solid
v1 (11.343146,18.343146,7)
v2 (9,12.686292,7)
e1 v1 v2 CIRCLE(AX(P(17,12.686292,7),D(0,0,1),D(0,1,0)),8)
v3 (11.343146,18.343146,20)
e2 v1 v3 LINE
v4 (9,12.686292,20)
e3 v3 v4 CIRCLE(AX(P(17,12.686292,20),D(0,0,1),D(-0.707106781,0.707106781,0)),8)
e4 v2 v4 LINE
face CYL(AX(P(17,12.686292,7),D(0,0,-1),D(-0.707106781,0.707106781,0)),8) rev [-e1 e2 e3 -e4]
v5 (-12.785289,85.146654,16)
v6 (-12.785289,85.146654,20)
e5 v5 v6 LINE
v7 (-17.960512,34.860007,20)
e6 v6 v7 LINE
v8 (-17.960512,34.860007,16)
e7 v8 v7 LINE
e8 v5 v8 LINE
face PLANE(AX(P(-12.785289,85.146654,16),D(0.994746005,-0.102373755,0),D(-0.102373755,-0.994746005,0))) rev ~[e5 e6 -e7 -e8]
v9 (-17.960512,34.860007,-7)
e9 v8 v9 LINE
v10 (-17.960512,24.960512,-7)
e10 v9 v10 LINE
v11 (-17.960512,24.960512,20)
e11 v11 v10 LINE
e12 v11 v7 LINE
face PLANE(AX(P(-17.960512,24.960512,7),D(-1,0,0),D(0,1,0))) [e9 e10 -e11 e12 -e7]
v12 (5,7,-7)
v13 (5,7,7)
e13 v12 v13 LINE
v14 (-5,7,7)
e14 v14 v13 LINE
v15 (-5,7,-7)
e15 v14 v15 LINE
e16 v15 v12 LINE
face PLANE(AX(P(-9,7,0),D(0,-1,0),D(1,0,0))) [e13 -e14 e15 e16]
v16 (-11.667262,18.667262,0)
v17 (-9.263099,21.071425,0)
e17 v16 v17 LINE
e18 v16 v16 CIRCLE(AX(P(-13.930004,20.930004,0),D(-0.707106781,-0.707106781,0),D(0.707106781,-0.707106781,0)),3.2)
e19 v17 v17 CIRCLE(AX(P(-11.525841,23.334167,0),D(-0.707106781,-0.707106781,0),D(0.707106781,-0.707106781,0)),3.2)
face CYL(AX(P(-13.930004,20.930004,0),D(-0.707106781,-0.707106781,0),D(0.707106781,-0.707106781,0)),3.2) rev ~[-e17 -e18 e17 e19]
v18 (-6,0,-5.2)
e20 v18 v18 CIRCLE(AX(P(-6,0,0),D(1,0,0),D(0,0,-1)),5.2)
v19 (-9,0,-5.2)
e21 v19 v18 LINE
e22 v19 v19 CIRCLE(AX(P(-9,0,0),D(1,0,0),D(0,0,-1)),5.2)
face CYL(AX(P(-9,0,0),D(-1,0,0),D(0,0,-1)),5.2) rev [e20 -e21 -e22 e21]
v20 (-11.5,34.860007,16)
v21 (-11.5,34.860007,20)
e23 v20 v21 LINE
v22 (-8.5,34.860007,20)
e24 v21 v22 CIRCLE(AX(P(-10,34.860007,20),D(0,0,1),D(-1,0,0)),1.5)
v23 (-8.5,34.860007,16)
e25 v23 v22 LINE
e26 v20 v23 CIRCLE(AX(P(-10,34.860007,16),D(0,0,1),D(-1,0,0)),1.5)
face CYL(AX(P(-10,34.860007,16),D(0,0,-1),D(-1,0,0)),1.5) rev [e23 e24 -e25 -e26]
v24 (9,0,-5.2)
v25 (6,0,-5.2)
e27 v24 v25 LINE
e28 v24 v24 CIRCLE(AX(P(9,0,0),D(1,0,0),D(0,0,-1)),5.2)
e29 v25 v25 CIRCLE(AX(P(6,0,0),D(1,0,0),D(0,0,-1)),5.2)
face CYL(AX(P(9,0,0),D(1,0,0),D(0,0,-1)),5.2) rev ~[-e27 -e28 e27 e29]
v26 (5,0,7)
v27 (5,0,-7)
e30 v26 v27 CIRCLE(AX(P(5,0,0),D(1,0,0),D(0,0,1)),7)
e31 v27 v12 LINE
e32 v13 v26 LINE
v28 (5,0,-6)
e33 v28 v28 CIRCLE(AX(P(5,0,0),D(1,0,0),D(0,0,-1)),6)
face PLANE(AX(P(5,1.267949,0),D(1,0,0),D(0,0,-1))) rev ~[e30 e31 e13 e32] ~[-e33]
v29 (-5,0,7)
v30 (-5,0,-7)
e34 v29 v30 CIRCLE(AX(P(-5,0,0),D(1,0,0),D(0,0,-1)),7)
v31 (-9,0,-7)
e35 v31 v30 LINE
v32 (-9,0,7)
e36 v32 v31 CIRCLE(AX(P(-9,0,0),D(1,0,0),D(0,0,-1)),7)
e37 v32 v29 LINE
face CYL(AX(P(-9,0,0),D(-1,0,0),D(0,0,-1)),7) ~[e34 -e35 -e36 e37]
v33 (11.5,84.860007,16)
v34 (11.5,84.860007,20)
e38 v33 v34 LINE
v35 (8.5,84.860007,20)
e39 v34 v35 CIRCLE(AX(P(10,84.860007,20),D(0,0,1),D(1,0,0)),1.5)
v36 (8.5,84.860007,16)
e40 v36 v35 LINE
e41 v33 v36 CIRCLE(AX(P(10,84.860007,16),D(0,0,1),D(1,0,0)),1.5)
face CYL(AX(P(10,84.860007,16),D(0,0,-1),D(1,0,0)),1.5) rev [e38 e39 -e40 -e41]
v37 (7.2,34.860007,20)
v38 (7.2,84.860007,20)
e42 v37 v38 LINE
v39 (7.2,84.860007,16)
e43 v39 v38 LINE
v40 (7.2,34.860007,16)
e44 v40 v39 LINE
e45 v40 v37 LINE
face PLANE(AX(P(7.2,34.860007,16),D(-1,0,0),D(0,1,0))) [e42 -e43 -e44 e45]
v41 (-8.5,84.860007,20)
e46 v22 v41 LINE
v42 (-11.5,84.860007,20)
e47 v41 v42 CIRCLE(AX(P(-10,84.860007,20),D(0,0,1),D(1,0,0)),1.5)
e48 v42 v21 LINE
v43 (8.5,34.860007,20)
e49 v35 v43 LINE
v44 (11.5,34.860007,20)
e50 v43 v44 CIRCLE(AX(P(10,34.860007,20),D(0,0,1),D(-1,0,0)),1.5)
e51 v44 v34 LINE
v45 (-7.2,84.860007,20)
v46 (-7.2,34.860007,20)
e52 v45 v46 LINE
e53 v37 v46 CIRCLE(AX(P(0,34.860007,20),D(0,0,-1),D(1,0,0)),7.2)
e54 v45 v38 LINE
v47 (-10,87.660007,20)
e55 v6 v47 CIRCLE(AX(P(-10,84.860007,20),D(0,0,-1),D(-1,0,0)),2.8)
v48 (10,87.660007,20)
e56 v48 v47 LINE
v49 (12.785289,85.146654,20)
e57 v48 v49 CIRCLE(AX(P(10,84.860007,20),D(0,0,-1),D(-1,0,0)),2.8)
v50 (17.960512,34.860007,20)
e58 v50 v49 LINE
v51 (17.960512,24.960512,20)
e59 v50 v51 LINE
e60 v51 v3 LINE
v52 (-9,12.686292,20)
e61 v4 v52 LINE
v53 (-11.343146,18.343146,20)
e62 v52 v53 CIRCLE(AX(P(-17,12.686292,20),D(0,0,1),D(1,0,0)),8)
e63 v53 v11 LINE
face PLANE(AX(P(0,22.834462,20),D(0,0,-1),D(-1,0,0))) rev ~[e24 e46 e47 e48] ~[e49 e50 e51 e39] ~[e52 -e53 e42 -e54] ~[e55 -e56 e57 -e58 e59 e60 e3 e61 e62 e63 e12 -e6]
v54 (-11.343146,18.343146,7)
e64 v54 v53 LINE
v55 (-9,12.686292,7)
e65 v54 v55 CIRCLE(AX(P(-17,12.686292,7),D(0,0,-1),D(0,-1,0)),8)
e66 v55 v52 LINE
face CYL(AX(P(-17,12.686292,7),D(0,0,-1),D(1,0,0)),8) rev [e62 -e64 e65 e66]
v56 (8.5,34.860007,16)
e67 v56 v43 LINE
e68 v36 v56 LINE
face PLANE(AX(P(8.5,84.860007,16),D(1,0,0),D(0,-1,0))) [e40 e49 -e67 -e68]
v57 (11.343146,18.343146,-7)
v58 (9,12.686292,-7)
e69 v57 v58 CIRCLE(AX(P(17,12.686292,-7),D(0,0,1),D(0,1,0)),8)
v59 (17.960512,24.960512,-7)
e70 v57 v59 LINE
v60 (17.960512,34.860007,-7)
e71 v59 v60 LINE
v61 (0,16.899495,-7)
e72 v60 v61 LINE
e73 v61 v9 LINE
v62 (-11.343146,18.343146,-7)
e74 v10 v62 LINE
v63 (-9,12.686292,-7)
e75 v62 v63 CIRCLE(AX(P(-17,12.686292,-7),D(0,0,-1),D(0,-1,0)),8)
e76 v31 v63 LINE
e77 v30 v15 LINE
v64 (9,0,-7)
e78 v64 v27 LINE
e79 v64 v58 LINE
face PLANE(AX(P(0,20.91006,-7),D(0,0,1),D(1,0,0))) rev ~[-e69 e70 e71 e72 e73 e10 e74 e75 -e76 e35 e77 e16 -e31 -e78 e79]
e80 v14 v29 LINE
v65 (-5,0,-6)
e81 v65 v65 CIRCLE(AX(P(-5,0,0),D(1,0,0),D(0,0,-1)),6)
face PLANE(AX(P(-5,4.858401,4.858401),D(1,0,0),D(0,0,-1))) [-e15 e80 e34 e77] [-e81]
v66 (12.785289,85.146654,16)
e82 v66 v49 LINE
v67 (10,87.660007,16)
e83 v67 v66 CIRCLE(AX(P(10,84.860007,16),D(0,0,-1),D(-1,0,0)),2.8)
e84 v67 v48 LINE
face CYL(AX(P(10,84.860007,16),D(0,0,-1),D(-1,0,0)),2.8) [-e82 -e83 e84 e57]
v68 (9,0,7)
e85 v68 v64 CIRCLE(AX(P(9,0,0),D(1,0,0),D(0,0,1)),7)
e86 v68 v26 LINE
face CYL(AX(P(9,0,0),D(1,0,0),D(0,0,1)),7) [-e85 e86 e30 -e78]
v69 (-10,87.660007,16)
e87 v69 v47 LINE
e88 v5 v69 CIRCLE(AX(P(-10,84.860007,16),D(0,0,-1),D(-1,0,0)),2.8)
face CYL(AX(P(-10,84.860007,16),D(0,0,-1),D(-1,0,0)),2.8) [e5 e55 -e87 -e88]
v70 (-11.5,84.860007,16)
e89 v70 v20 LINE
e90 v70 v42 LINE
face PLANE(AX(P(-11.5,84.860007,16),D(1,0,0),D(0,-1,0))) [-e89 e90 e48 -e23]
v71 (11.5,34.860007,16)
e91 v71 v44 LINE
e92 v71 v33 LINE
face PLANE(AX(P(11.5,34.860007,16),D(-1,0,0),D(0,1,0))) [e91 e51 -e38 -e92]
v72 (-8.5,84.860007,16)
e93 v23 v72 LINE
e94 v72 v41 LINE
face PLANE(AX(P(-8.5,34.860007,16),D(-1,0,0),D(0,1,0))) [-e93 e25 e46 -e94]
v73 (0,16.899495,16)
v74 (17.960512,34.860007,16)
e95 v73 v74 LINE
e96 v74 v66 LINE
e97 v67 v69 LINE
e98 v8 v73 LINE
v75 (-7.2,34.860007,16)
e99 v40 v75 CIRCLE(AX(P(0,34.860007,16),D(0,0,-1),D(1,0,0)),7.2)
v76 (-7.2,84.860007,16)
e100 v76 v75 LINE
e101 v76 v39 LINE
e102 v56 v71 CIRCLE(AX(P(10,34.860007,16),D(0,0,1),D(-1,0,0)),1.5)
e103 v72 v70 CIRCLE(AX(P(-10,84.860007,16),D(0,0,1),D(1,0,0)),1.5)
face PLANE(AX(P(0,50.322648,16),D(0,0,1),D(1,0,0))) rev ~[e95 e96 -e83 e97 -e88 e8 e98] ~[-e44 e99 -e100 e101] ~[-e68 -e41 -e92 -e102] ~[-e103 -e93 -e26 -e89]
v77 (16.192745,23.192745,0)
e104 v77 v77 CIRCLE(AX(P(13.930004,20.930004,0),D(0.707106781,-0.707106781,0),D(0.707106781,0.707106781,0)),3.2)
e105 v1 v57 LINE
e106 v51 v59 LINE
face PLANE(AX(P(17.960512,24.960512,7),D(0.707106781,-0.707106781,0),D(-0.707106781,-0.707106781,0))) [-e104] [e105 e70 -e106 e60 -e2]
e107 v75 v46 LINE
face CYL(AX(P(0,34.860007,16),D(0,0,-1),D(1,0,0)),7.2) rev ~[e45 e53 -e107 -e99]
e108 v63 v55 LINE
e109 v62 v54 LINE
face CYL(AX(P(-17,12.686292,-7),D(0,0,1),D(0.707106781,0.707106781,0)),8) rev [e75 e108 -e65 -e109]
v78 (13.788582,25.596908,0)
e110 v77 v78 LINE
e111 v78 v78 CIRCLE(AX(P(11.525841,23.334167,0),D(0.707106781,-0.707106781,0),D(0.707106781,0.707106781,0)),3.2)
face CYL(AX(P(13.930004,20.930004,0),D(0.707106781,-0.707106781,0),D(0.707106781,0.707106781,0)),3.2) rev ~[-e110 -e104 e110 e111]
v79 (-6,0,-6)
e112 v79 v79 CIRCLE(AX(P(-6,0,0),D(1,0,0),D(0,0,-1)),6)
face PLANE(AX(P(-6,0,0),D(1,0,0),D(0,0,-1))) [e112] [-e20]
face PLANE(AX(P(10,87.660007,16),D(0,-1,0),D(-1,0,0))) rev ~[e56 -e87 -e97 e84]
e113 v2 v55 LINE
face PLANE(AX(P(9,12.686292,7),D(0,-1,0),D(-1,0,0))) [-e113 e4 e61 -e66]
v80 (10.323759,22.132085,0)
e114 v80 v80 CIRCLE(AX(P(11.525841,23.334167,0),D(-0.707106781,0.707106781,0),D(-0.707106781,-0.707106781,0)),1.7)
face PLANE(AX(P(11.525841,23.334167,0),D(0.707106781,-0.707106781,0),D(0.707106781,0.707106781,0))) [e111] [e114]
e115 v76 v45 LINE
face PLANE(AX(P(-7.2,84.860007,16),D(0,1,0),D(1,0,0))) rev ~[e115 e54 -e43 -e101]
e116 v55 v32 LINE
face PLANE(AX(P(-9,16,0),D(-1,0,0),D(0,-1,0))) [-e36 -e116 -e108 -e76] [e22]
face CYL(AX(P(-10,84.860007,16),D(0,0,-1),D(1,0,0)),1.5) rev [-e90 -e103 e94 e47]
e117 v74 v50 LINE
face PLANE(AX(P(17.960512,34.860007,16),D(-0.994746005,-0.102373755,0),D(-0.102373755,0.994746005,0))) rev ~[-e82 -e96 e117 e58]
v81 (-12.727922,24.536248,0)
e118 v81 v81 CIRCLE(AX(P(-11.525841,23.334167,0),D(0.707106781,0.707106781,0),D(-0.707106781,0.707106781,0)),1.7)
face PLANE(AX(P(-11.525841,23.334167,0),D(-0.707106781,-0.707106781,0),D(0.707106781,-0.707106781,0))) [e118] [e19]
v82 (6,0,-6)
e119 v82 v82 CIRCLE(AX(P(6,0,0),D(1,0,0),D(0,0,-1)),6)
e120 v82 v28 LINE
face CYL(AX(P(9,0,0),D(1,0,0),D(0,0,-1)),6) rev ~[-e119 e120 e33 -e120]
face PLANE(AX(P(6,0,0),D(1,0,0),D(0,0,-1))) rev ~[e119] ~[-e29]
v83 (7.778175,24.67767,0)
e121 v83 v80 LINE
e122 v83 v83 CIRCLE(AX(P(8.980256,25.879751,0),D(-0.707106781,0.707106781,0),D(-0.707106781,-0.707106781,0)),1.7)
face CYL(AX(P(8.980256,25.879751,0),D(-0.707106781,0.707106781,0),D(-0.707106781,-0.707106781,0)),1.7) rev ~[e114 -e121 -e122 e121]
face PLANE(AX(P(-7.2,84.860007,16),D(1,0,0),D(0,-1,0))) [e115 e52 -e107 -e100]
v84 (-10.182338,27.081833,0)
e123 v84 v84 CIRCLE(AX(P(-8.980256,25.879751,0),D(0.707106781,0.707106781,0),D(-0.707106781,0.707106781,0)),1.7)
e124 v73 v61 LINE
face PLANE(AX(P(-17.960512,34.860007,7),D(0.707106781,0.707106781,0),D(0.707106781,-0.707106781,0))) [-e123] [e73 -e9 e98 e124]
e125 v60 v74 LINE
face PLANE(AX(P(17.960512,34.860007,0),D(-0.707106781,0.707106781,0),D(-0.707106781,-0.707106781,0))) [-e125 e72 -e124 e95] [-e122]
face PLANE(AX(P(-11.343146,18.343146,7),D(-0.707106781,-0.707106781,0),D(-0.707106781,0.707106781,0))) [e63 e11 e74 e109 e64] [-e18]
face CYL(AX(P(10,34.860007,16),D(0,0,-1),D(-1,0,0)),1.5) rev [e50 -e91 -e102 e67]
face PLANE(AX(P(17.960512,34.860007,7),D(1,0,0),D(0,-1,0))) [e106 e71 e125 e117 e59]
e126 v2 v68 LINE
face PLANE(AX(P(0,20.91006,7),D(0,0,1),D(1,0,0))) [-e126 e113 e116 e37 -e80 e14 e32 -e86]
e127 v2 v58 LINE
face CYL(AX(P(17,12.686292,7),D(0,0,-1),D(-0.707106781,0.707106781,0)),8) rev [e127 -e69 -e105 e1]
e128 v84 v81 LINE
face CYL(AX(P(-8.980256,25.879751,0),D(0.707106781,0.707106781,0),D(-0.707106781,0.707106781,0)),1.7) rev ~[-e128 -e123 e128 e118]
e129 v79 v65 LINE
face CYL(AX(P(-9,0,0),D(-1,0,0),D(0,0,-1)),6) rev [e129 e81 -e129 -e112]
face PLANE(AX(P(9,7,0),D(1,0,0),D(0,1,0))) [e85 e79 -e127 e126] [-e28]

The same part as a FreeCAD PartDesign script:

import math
import FreeCAD as App
import Part
import Sketcher

V = App.Vector


def edges_at(feature, points):
    """Names of the edges that pass closest to the given points."""
    edges = feature.Shape.Edges
    near = lambda p: min(range(len(edges)), key=lambda i: edges[i].distToShape(Part.Vertex(*p))[0])
    return sorted({f"Edge{near(p) + 1}" for p in points})

doc = App.newDocument("Part")
params = doc.addObject("Spreadsheet::Sheet", "Params")
for row, (alias, value) in enumerate([
    ("sketch1_diameter", "12 mm"),
    ("sketch1_diameter2", "10.4 mm"),
    ("pad1_length", "3 mm"),
    ("sketch2_diameter", "12 mm"),
    ("sketch2_radius", "7 mm"),
    ("sketch2_width", "7 mm"),
    ("pad2_length", "4 mm"),
    ("sketch3_diameter", "12 mm"),
    ("sketch3_radius", "7 mm"),
    ("sketch3_width", "7 mm"),
    ("pad3_length", "4 mm"),
    ("sketch4_diameter", "12 mm"),
    ("sketch4_diameter2", "10.4 mm"),
    ("pad4_length", "3 mm"),
    ("sketch5_width", "18 mm"),
    ("sketch5_height", "9 mm"),
    ("sketch5_length", "25.4 mm"),
    ("pad5_length", "7 mm"),
    ("pad5_length2", "7 mm"),
    ("sketch6_diameter", "3.4 mm"),
    ("pocket1_length", "7 mm"),
    ("sketch7_diameter", "3.4 mm"),
    ("pocket2_length", "7 mm"),
    ("sketch8_diameter", "6.4 mm"),
    ("pocket3_length", "3.4 mm"),
    ("sketch9_diameter", "6.4 mm"),
    ("pocket4_length", "3.4 mm"),
    ("fillet_radius", "8 mm"),
    ("sketch10_radius", "2.8 mm"),
    ("sketch10_radius2", "7.2 mm"),
    ("sketch10_radius3", "1.5 mm"),
    ("sketch10_width", "20 mm"),
    ("sketch10_height", "50 mm"),
    ("pad6_length", "4 mm"),
    ("sketch11_radius", "8 mm"),
    ("sketch11_width", "18 mm"),
    ("sketch11_length", "25.4 mm"),
    ("pad7_length", "13 mm"),
], start=1):
    params.set(f"A{row}", alias)
    params.set(f"B{row}", "=" + value)
    params.setAlias(f"B{row}", alias)

body = doc.addObject("PartDesign::Body", "Body")

sketch1 = doc.addObject("Sketcher::SketchObject", "Sketch")
body.addObject(sketch1)
sketch1.AttachmentSupport = (doc.YZ_Plane, [""])
sketch1.MapMode = "FlatFace"
sketch1.AttachmentOffset = App.Placement(V(0, 0, 9), App.Rotation())
sketch1.addGeometry([
    Part.Circle(V(0, 0, 0), V(0, 0, 1), 6),
    Part.Circle(V(0, 0, 0), V(0, 0, 1), 5.2),
], False)
sketch1.addConstraint([
    Sketcher.Constraint("Coincident", 0, 3, -1, 1),
    Sketcher.Constraint("Coincident", 1, 3, -1, 1),
    Sketcher.Constraint("Diameter", 0, 12.0),
    Sketcher.Constraint("Diameter", 1, 10.4),
])
sketch1.setExpression("Constraints[2]", "Params.sketch1_diameter")
sketch1.setExpression("Constraints[3]", "Params.sketch1_diameter2")
pad1 = doc.addObject("PartDesign::Pad", "Pad")
body.addObject(pad1)
pad1.Profile = sketch1
pad1.setExpression("Length", "Params.pad1_length")
pad1.Reversed = True

sketch2 = doc.addObject("Sketcher::SketchObject", "Sketch001")
body.addObject(sketch2)
sketch2.AttachmentSupport = (doc.YZ_Plane, [""])
sketch2.MapMode = "FlatFace"
sketch2.AttachmentOffset = App.Placement(V(0, 0, 9), App.Rotation())
sketch2.addGeometry([
    Part.LineSegment(V(7, 7, 0), V(0, 7, 0)),
    Part.ArcOfCircle(Part.Circle(V(0, 0, 0), V(0, 0, 1), 7), math.radians(90), math.radians(270)),
    Part.LineSegment(V(0, -7, 0), V(7, -7, 0)),
    Part.LineSegment(V(7, -7, 0), V(7, 7, 0)),
    Part.Circle(V(0, 0, 0), V(0, 0, 1), 6),
], False)
sketch2.addConstraint([
    Sketcher.Constraint("Tangent", 0, 2, 1, 1),
    Sketcher.Constraint("Tangent", 1, 2, 2, 1),
    Sketcher.Constraint("Coincident", 2, 2, 3, 1),
    Sketcher.Constraint("Coincident", 3, 2, 0, 1),
    Sketcher.Constraint("Horizontal", 0),
    Sketcher.Constraint("Horizontal", 2),
    Sketcher.Constraint("Vertical", 3),
    Sketcher.Constraint("Coincident", 1, 3, -1, 1),
    Sketcher.Constraint("Coincident", 4, 3, -1, 1),
    Sketcher.Constraint("Diameter", 4, 12.0),
    Sketcher.Constraint("Radius", 1, 7.0),
    Sketcher.Constraint("DistanceX", 0, 2, 0, 1, 7.0),
])
sketch2.setExpression("Constraints[9]", "Params.sketch2_diameter")
sketch2.setExpression("Constraints[10]", "Params.sketch2_radius")
sketch2.setExpression("Constraints[11]", "Params.sketch2_width")
pad2 = doc.addObject("PartDesign::Pad", "Pad001")
body.addObject(pad2)
pad2.Profile = sketch2
pad2.setExpression("Length", "Params.pad2_length")
pad2.Reversed = True
body2 = doc.addObject("PartDesign::Body", "Body001")

sketch3 = doc.addObject("Sketcher::SketchObject", "Sketch002")
body2.addObject(sketch3)
sketch3.AttachmentSupport = (doc.getObject("YZ_Plane001"), [""])
sketch3.MapMode = "FlatFace"
sketch3.AttachmentOffset = App.Placement(V(0, 0, -9), App.Rotation())
sketch3.addGeometry([
    Part.LineSegment(V(7, 7, 0), V(0, 7, 0)),
    Part.ArcOfCircle(Part.Circle(V(0, 0, 0), V(0, 0, 1), 7), math.radians(90), math.radians(270)),
    Part.LineSegment(V(0, -7, 0), V(7, -7, 0)),
    Part.LineSegment(V(7, -7, 0), V(7, 7, 0)),
    Part.Circle(V(0, 0, 0), V(0, 0, 1), 6),
], False)
sketch3.addConstraint([
    Sketcher.Constraint("Tangent", 0, 2, 1, 1),
    Sketcher.Constraint("Tangent", 1, 2, 2, 1),
    Sketcher.Constraint("Coincident", 2, 2, 3, 1),
    Sketcher.Constraint("Coincident", 3, 2, 0, 1),
    Sketcher.Constraint("Horizontal", 0),
    Sketcher.Constraint("Horizontal", 2),
    Sketcher.Constraint("Vertical", 3),
    Sketcher.Constraint("Coincident", 1, 3, -1, 1),
    Sketcher.Constraint("Coincident", 4, 3, -1, 1),
    Sketcher.Constraint("Diameter", 4, 12.0),
    Sketcher.Constraint("Radius", 1, 7.0),
    Sketcher.Constraint("DistanceX", 0, 2, 0, 1, 7.0),
])
sketch3.setExpression("Constraints[9]", "Params.sketch3_diameter")
sketch3.setExpression("Constraints[10]", "Params.sketch3_radius")
sketch3.setExpression("Constraints[11]", "Params.sketch3_width")
pad3 = doc.addObject("PartDesign::Pad", "Pad002")
body2.addObject(pad3)
pad3.Profile = sketch3
pad3.setExpression("Length", "Params.pad3_length")

sketch4 = doc.addObject("Sketcher::SketchObject", "Sketch003")
body2.addObject(sketch4)
sketch4.AttachmentSupport = (doc.getObject("YZ_Plane001"), [""])
sketch4.MapMode = "FlatFace"
sketch4.AttachmentOffset = App.Placement(V(0, 0, -9), App.Rotation())
sketch4.addGeometry([
    Part.Circle(V(0, 0, 0), V(0, 0, 1), 6),
    Part.Circle(V(0, 0, 0), V(0, 0, 1), 5.2),
], False)
sketch4.addConstraint([
    Sketcher.Constraint("Coincident", 0, 3, -1, 1),
    Sketcher.Constraint("Coincident", 1, 3, -1, 1),
    Sketcher.Constraint("Diameter", 0, 12.0),
    Sketcher.Constraint("Diameter", 1, 10.4),
])
sketch4.setExpression("Constraints[2]", "Params.sketch4_diameter")
sketch4.setExpression("Constraints[3]", "Params.sketch4_diameter2")
pad4 = doc.addObject("PartDesign::Pad", "Pad003")
body2.addObject(pad4)
pad4.Profile = sketch4
pad4.setExpression("Length", "Params.pad4_length")
body.AllowCompound = True
doc.recompute()

boolean = doc.addObject("PartDesign::Boolean", "Boolean")
body.addObject(boolean)
boolean.Type = "Fuse"
boolean.addObjects([body2])

sketch5 = doc.addObject("Sketcher::SketchObject", "Sketch004")
body.addObject(sketch5)
sketch5.AttachmentSupport = (doc.XY_Plane, [""])
sketch5.MapMode = "FlatFace"
sketch5.addGeometry([
    Part.LineSegment(V(9, 16, 0), V(17.960512, 24.960512, 0)),
    Part.LineSegment(V(17.960512, 24.960512, 0), V(17.960512, 34.860007, 0)),
    Part.LineSegment(V(17.960512, 34.860007, 0), V(0, 16.899495, 0)),
    Part.LineSegment(V(0, 16.899495, 0), V(-17.960512, 34.860007, 0)),
    Part.LineSegment(V(-17.960512, 34.860007, 0), V(-17.960512, 24.960512, 0)),
    Part.LineSegment(V(-17.960512, 24.960512, 0), V(-9, 16, 0)),
    Part.LineSegment(V(-9, 16, 0), V(-9, 7, 0)),
    Part.LineSegment(V(-9, 7, 0), V(9, 7, 0)),
    Part.LineSegment(V(9, 7, 0), V(9, 16, 0)),
], False)
sketch5.addConstraint([
    Sketcher.Constraint("Coincident", 0, 2, 1, 1),
    Sketcher.Constraint("Coincident", 1, 2, 2, 1),
    Sketcher.Constraint("Coincident", 2, 2, 3, 1),
    Sketcher.Constraint("Coincident", 3, 2, 4, 1),
    Sketcher.Constraint("Coincident", 4, 2, 5, 1),
    Sketcher.Constraint("Coincident", 5, 2, 6, 1),
    Sketcher.Constraint("Coincident", 6, 2, 7, 1),
    Sketcher.Constraint("Coincident", 7, 2, 8, 1),
    Sketcher.Constraint("Coincident", 8, 2, 0, 1),
    Sketcher.Constraint("Vertical", 1),
    Sketcher.Constraint("Vertical", 4),
    Sketcher.Constraint("Vertical", 6),
    Sketcher.Constraint("Horizontal", 7),
    Sketcher.Constraint("Vertical", 8),
    Sketcher.Constraint("Symmetric", 1, 2, 3, 2, -2),
    Sketcher.Constraint("Symmetric", 5, 2, 8, 2, -2),
    Sketcher.Constraint("PointOnObject", 2, 2, -2),
    Sketcher.Constraint("Parallel", 0, 2),
    Sketcher.Constraint("Perpendicular", 2, 3),
    Sketcher.Constraint("Parallel", 3, 5),
    Sketcher.Constraint("DistanceX", 7, 1, 7, 2, 18.0),
    Sketcher.Constraint("DistanceY", 6, 2, 6, 1, 9.0),
    Sketcher.Constraint("DistanceY", -1, 1, 5, 2, 16.0),
    Sketcher.Constraint("Distance", 2, 25.4),
    Sketcher.Constraint("DistanceY", 1, 1, 1, 2, 9.899495),
])
sketch5.setExpression("Constraints[20]", "Params.sketch5_width")
sketch5.setExpression("Constraints[21]", "Params.sketch5_height")
sketch5.setExpression("Constraints[23]", "Params.sketch5_length")
pad5 = doc.addObject("PartDesign::Pad", "Pad004")
body.addObject(pad5)
pad5.Profile = sketch5
pad5.Type = "TwoLengths"
pad5.setExpression("Length", "Params.pad5_length")
pad5.setExpression("Length2", "Params.pad5_length2")

sketch6 = doc.addObject("Sketcher::SketchObject", "Sketch005")
body.addObject(sketch6)
sketch6.Placement = App.Placement(V(8.449747, 8.449747, 0), App.Rotation(V(0.707106781, -0.707106781, 0), V(0, 0, -0.999999999), V(0.707106781, 0.707106781, 0), "ZXY"))
sketch6.addGeometry(Part.Circle(V(-24.649747, 0, 0), V(0, 0, 1), 1.7), False)
sketch6.addConstraint([
    Sketcher.Constraint("PointOnObject", 0, 3, -1),
    Sketcher.Constraint("Diameter", 0, 3.4),
    Sketcher.Constraint("DistanceX", 0, 3, -1, 1, 24.649747),
])
sketch6.setExpression("Constraints[1]", "Params.sketch6_diameter")
pocket1 = doc.addObject("PartDesign::Pocket", "Pocket")
body.addObject(pocket1)
pocket1.Profile = sketch6
pocket1.setExpression("Length", "Params.pocket1_length")

sketch7 = doc.addObject("Sketcher::SketchObject", "Sketch006")
body.addObject(sketch7)
sketch7.Placement = App.Placement(V(-8.449747, 8.449747, 0), App.Rotation(V(0.707106781, 0.707106781, 0), V(0, 0, -0.999999999), V(-0.707106781, 0.707106781, 0), "ZXY"))
sketch7.addGeometry(Part.Circle(V(24.649747, 0, 0), V(0, 0, 1), 1.7), False)
sketch7.addConstraint([
    Sketcher.Constraint("PointOnObject", 0, 3, -1),
    Sketcher.Constraint("Diameter", 0, 3.4),
    Sketcher.Constraint("DistanceX", -1, 1, 0, 3, 24.649747),
])
sketch7.setExpression("Constraints[1]", "Params.sketch7_diameter")
pocket2 = doc.addObject("PartDesign::Pocket", "Pocket001")
body.addObject(pocket2)
pocket2.Profile = sketch7
pocket2.setExpression("Length", "Params.pocket2_length")

sketch8 = doc.addObject("Sketcher::SketchObject", "Sketch007")
body.addObject(sketch8)
sketch8.Placement = App.Placement(V(-3.5, 3.5, 0), App.Rotation(V(-0.707106781, -0.707106781, 0), V(0, 0, -0.999999999), V(0.707106781, -0.707106781, 0), "ZXY"))
sketch8.addGeometry(Part.Circle(V(-24.649747, 0, 0), V(0, 0, 1), 3.2), False)
sketch8.addConstraint([
    Sketcher.Constraint("PointOnObject", 0, 3, -1),
    Sketcher.Constraint("Diameter", 0, 6.4),
    Sketcher.Constraint("DistanceX", 0, 3, -1, 1, 24.649747),
])
sketch8.setExpression("Constraints[1]", "Params.sketch8_diameter")
pocket3 = doc.addObject("PartDesign::Pocket", "Pocket002")
body.addObject(pocket3)
pocket3.Profile = sketch8
pocket3.setExpression("Length", "Params.pocket3_length")

sketch9 = doc.addObject("Sketcher::SketchObject", "Sketch008")
body.addObject(sketch9)
sketch9.Placement = App.Placement(V(3.5, 3.5, 0), App.Rotation(V(-0.707106781, 0.707106781, 0), V(0, 0, -0.999999999), V(-0.707106781, -0.707106781, 0), "ZXY"))
sketch9.addGeometry(Part.Circle(V(24.649747, 0, 0), V(0, 0, 1), 3.2), False)
sketch9.addConstraint([
    Sketcher.Constraint("PointOnObject", 0, 3, -1),
    Sketcher.Constraint("Diameter", 0, 6.4),
    Sketcher.Constraint("DistanceX", -1, 1, 0, 3, 24.649747),
])
sketch9.setExpression("Constraints[1]", "Params.sketch9_diameter")
pocket4 = doc.addObject("PartDesign::Pocket", "Pocket003")
body.addObject(pocket4)
pocket4.Profile = sketch9
pocket4.setExpression("Length", "Params.pocket4_length")
doc.recompute()

fillet = doc.addObject("PartDesign::Fillet", "Fillet")
body.addObject(fillet)
fillet.Base = (pocket4, edges_at(pocket4, [(9, 16, 0), (-9, 16, 0)]))
fillet.setExpression("Radius", "Params.fillet_radius")
body3 = doc.addObject("PartDesign::Body", "Body002")

sketch10 = doc.addObject("Sketcher::SketchObject", "Sketch009")
body3.addObject(sketch10)
sketch10.AttachmentSupport = (doc.getObject("XY_Plane002"), [""])
sketch10.MapMode = "FlatFace"
sketch10.AttachmentOffset = App.Placement(V(0, 0, 16), App.Rotation())
sketch10.addGeometry([
    Part.LineSegment(V(-17.960512, 34.860007, 0), V(0, 16.899495, 0)),
    Part.LineSegment(V(0, 16.899495, 0), V(17.960512, 34.860007, 0)),
    Part.LineSegment(V(17.960512, 34.860007, 0), V(12.785289, 85.146654, 0)),
    Part.ArcOfCircle(Part.Circle(V(10, 84.860007, 0), V(0, 0, 1), 2.8), math.radians(5.875878), math.radians(90)),
    Part.LineSegment(V(10, 87.660007, 0), V(-10, 87.660007, 0)),
    Part.ArcOfCircle(Part.Circle(V(-10, 84.860007, 0), V(0, 0, 1), 2.8), math.radians(90), math.radians(174.124122)),
    Part.LineSegment(V(-12.785289, 85.146654, 0), V(-17.960512, 34.860007, 0)),
    Part.LineSegment(V(7.2, 84.860007, 0), V(7.2, 34.860007, 0)),
    Part.ArcOfCircle(Part.Circle(V(0, 34.860007, 0), V(0, 0, 1), 7.2), math.radians(180), math.radians(360)),
    Part.LineSegment(V(-7.2, 34.860007, 0), V(-7.2, 84.860007, 0)),
    Part.LineSegment(V(-7.2, 84.860007, 0), V(7.2, 84.860007, 0)),
    Part.LineSegment(V(-11.5, 34.860007, 0), V(-11.5, 84.860007, 0)),
    Part.ArcOfCircle(Part.Circle(V(-10, 84.860007, 0), V(0, 0, 1), 1.5), math.radians(0), math.radians(180)),
    Part.LineSegment(V(-8.5, 84.860007, 0), V(-8.5, 34.860007, 0)),
    Part.ArcOfCircle(Part.Circle(V(-10, 34.860007, 0), V(0, 0, 1), 1.5), math.radians(180), math.radians(360)),
    Part.ArcOfCircle(Part.Circle(V(10, 84.860007, 0), V(0, 0, 1), 1.5), math.radians(0), math.radians(180)),
    Part.LineSegment(V(11.5, 84.860007, 0), V(11.5, 34.860007, 0)),
    Part.ArcOfCircle(Part.Circle(V(10, 34.860007, 0), V(0, 0, 1), 1.5), math.radians(180), math.radians(360)),
    Part.LineSegment(V(8.5, 34.860007, 0), V(8.5, 84.860007, 0)),
], False)
sketch10.addConstraint([
    Sketcher.Constraint("Coincident", 0, 2, 1, 1),
    Sketcher.Constraint("Coincident", 1, 2, 2, 1),
    Sketcher.Constraint("Tangent", 2, 2, 3, 1),
    Sketcher.Constraint("Tangent", 3, 2, 4, 1),
    Sketcher.Constraint("Tangent", 4, 2, 5, 1),
    Sketcher.Constraint("Tangent", 5, 2, 6, 1),
    Sketcher.Constraint("Coincident", 6, 2, 0, 1),
    Sketcher.Constraint("Tangent", 7, 2, 8, 2),
    Sketcher.Constraint("Tangent", 8, 1, 9, 1),
    Sketcher.Constraint("Coincident", 9, 2, 10, 1),
    Sketcher.Constraint("Coincident", 10, 2, 7, 1),
    Sketcher.Constraint("Tangent", 11, 2, 12, 2),
    Sketcher.Constraint("Tangent", 12, 1, 13, 1),
    Sketcher.Constraint("Tangent", 13, 2, 14, 2),
    Sketcher.Constraint("Tangent", 14, 1, 11, 1),
    Sketcher.Constraint("Tangent", 15, 1, 16, 1),
    Sketcher.Constraint("Tangent", 16, 2, 17, 2),
    Sketcher.Constraint("Tangent", 17, 1, 18, 1),
    Sketcher.Constraint("Tangent", 18, 2, 15, 2),
    Sketcher.Constraint("Horizontal", 4),
    Sketcher.Constraint("Vertical", 7),
    Sketcher.Constraint("Vertical", 9),
    Sketcher.Constraint("Horizontal", 10),
    Sketcher.Constraint("Vertical", 11),
    Sketcher.Constraint("Vertical", 13),
    Sketcher.Constraint("Vertical", 16),
    Sketcher.Constraint("Vertical", 18),
    Sketcher.Constraint("Coincident", 12, 3, 5, 3),
    Sketcher.Constraint("Coincident", 15, 3, 3, 3),
    Sketcher.Constraint("Equal", 3, 5),
    Sketcher.Constraint("Equal", 14, 15),
    Sketcher.Constraint("Symmetric", 14, 3, 17, 3, -2),
    Sketcher.Constraint("Symmetric", 1, 2, 6, 2, -2),
    Sketcher.Constraint("PointOnObject", 8, 3, -2),
    Sketcher.Constraint("PointOnObject", 0, 2, -2),
    Sketcher.Constraint("Perpendicular", 0, 1),
    Sketcher.Constraint("Horizontal", 8, 3, 14, 3),
    Sketcher.Constraint("Horizontal", 17, 3, 1, 2),
    Sketcher.Constraint("Horizontal", 15, 3, 9, 2),
    Sketcher.Constraint("Radius", 3, 2.8),
    Sketcher.Constraint("Radius", 8, 7.2),
    Sketcher.Constraint("Radius", 12, 1.5),
    Sketcher.Constraint("DistanceX", 4, 2, 4, 1, 20.0),
    Sketcher.Constraint("DistanceY", 7, 2, 7, 1, 50.0),
    Sketcher.Constraint("Distance", 0, 25.4),
    Sketcher.Constraint("DistanceY", -1, 1, 3, 3, 84.860007),
])
sketch10.setExpression("Constraints[39]", "Params.sketch10_radius")
sketch10.setExpression("Constraints[40]", "Params.sketch10_radius2")
sketch10.setExpression("Constraints[41]", "Params.sketch10_radius3")
sketch10.setExpression("Constraints[42]", "Params.sketch10_width")
sketch10.setExpression("Constraints[43]", "Params.sketch10_height")
pad6 = doc.addObject("PartDesign::Pad", "Pad005")
body3.addObject(pad6)
pad6.Profile = sketch10
pad6.setExpression("Length", "Params.pad6_length")
body.AllowCompound = True
doc.recompute()

boolean2 = doc.addObject("PartDesign::Boolean", "Boolean001")
body.addObject(boolean2)
boolean2.Type = "Fuse"
boolean2.addObjects([body3])

sketch11 = doc.addObject("Sketcher::SketchObject", "Sketch010")
body.addObject(sketch11)
sketch11.AttachmentSupport = (doc.XY_Plane, [""])
sketch11.MapMode = "FlatFace"
sketch11.AttachmentOffset = App.Placement(V(0, 0, 7), App.Rotation())
sketch11.addGeometry([
    Part.ArcOfCircle(Part.Circle(V(-17, 12.686292, 0), V(0, 0, 1), 8), math.radians(0), math.radians(45)),
    Part.LineSegment(V(-9, 12.686292, 0), V(9, 12.686292, 0)),
    Part.ArcOfCircle(Part.Circle(V(17, 12.686292, 0), V(0, 0, 1), 8), math.radians(135), math.radians(180)),
    Part.LineSegment(V(11.343146, 18.343146, 0), V(17.960512, 24.960512, 0)),
    Part.LineSegment(V(17.960512, 24.960512, 0), V(17.960512, 34.860007, 0)),
    Part.LineSegment(V(17.960512, 34.860007, 0), V(0, 16.899495, 0)),
    Part.LineSegment(V(0, 16.899495, 0), V(-17.960512, 34.860007, 0)),
    Part.LineSegment(V(-17.960512, 34.860007, 0), V(-17.960512, 24.960512, 0)),
    Part.LineSegment(V(-17.960512, 24.960512, 0), V(-11.343146, 18.343146, 0)),
], False)
sketch11.addConstraint([
    Sketcher.Constraint("Coincident", 0, 1, 1, 1),
    Sketcher.Constraint("Coincident", 1, 2, 2, 2),
    Sketcher.Constraint("Tangent", 2, 1, 3, 1),
    Sketcher.Constraint("Coincident", 3, 2, 4, 1),
    Sketcher.Constraint("Coincident", 4, 2, 5, 1),
    Sketcher.Constraint("Coincident", 5, 2, 6, 1),
    Sketcher.Constraint("Coincident", 6, 2, 7, 1),
    Sketcher.Constraint("Coincident", 7, 2, 8, 1),
    Sketcher.Constraint("Tangent", 8, 2, 0, 2),
    Sketcher.Constraint("Horizontal", 1),
    Sketcher.Constraint("Vertical", 4),
    Sketcher.Constraint("Vertical", 7),
    Sketcher.Constraint("Equal", 0, 2),
    Sketcher.Constraint("Symmetric", 0, 3, 2, 3, -2),
    Sketcher.Constraint("Symmetric", 4, 2, 6, 2, -2),
    Sketcher.Constraint("PointOnObject", 5, 2, -2),
    Sketcher.Constraint("Parallel", 3, 5),
    Sketcher.Constraint("Perpendicular", 5, 6),
    Sketcher.Constraint("Parallel", 6, 8),
    Sketcher.Constraint("Horizontal", 2, 3, 0, 1),
    Sketcher.Constraint("Radius", 0, 8.0),
    Sketcher.Constraint("DistanceX", 1, 1, 1, 2, 18.0),
    Sketcher.Constraint("Distance", 5, 25.4),
    Sketcher.Constraint("DistanceY", 4, 1, 4, 2, 9.899495),
    Sketcher.Constraint("DistanceY", -1, 1, 0, 3, 12.686292),
])
sketch11.setExpression("Constraints[20]", "Params.sketch11_radius")
sketch11.setExpression("Constraints[21]", "Params.sketch11_width")
sketch11.setExpression("Constraints[22]", "Params.sketch11_length")
pad7 = doc.addObject("PartDesign::Pad", "Pad006")
body.addObject(pad7)
pad7.Profile = sketch11
pad7.setExpression("Length", "Params.pad7_length")

doc.recompute()
